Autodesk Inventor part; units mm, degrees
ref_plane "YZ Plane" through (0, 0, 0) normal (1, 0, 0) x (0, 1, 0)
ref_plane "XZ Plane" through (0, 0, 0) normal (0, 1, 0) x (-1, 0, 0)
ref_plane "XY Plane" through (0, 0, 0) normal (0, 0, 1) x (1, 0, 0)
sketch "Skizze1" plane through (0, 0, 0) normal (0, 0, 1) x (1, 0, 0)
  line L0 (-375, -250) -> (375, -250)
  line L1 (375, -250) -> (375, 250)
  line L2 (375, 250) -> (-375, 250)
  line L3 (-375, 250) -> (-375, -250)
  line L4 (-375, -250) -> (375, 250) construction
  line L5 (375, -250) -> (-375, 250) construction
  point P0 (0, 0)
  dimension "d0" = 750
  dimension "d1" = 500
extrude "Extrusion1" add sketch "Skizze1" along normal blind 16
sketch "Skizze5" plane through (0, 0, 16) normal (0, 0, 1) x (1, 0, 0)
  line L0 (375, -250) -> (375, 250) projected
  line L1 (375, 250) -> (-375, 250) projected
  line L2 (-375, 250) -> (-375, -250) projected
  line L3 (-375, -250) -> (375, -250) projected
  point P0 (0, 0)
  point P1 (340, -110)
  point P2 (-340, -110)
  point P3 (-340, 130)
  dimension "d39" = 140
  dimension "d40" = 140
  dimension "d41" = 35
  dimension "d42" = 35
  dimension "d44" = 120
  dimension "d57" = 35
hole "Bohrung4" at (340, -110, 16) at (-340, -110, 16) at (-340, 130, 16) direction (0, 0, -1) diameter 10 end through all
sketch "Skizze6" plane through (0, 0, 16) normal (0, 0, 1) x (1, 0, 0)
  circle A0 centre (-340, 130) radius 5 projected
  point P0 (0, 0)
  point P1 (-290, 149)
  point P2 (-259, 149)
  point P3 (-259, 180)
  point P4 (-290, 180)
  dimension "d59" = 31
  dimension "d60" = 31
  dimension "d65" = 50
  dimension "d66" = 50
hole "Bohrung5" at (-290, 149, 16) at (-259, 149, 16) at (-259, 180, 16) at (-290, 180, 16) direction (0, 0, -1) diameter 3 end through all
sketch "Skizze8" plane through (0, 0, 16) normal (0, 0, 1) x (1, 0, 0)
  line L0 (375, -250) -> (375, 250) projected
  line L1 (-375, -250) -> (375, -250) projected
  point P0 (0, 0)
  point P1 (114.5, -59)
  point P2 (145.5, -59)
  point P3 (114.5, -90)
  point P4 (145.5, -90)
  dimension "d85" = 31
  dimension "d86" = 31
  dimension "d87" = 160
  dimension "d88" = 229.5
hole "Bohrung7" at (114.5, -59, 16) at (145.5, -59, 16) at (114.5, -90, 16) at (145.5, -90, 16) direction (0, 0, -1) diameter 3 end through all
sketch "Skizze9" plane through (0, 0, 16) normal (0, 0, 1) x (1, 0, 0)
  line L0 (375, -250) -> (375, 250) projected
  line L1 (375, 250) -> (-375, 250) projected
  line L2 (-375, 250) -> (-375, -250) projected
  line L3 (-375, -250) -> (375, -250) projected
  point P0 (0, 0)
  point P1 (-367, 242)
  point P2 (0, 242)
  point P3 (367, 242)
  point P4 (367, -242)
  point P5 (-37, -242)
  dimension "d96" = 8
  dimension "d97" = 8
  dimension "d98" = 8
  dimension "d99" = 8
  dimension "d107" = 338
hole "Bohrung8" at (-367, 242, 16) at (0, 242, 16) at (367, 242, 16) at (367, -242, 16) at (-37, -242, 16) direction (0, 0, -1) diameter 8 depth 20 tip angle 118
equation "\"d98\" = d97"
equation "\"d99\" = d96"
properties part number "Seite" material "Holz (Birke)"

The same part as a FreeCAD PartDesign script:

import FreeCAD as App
import Part
import Sketcher
from FreeCAD import Vector
Q = App.Units.Quantity

doc = App.newDocument("Part")
body = doc.addObject("PartDesign::Body", "Body")

sketch1 = doc.addObject("Sketcher::SketchObject", "Sketch")
body.addObject(sketch1)
sketch1.AttachmentSupport = (doc.XY_Plane, [""])
sketch1.MapMode = "FlatFace"
sketch1.addGeometry(Part.LineSegment(Vector(-375, 250, 0), Vector(-375, -250, 0)), False)
sketch1.addGeometry(Part.LineSegment(Vector(-375, -250, 0), Vector(375, -250, 0)), False)
sketch1.addGeometry(Part.LineSegment(Vector(375, -250, 0), Vector(375, 250, 0)), False)
sketch1.addGeometry(Part.LineSegment(Vector(375, 250, 0), Vector(-375, 250, 0)), False)
sketch1.addConstraint(Sketcher.Constraint("Coincident", 0, 2, 1, 1))
sketch1.addConstraint(Sketcher.Constraint("Coincident", 1, 2, 2, 1))
sketch1.addConstraint(Sketcher.Constraint("Coincident", 2, 2, 3, 1))
sketch1.addConstraint(Sketcher.Constraint("Coincident", 3, 2, 0, 1))
sketch1.addConstraint(Sketcher.Constraint("Vertical", 0))
sketch1.addConstraint(Sketcher.Constraint("Horizontal", 1))
sketch1.addConstraint(Sketcher.Constraint("Vertical", 2))
sketch1.addConstraint(Sketcher.Constraint("Horizontal", 3))
sketch1.addConstraint(Sketcher.Constraint("Symmetric", 0, 2, 2, 2, -1, 1))
sketch1.addConstraint(Sketcher.Constraint("DistanceX", 1, 1, 1, 2, Q("750 mm")))
sketch1.addConstraint(Sketcher.Constraint("DistanceY", 0, 2, 0, 1, Q("500 mm")))
pad1 = doc.addObject("PartDesign::Pad", "Pad")
body.addObject(pad1)
pad1.Profile = sketch1
pad1.Length = 16

sketch2 = doc.addObject("Sketcher::SketchObject", "Sketch001")
body.addObject(sketch2)
sketch2.AttachmentSupport = (doc.XY_Plane, [""])
sketch2.MapMode = "FlatFace"
sketch2.AttachmentOffset = App.Placement(Vector(0, 0, 16), App.Rotation())
sketch2.addGeometry(Part.Circle(Vector(340, -110, 0), Vector(0, 0, 1), 5), False)
sketch2.addGeometry(Part.Circle(Vector(-340, -110, 0), Vector(0, 0, 1), 5), False)
sketch2.addGeometry(Part.Circle(Vector(-340, 130, 0), Vector(0, 0, 1), 5), False)
sketch2.addConstraint(Sketcher.Constraint("Equal", 0, 1))
sketch2.addConstraint(Sketcher.Constraint("Equal", 1, 2))
sketch2.addConstraint(Sketcher.Constraint("Symmetric", 0, 3, 1, 3, -2))
sketch2.addConstraint(Sketcher.Constraint("Vertical", 1, 3, 2, 3))
sketch2.addConstraint(Sketcher.Constraint("Diameter", 0, Q("10 mm")))
sketch2.addConstraint(Sketcher.Constraint("DistanceX", -1, 1, 0, 3, Q("340 mm")))
sketch2.addConstraint(Sketcher.Constraint("DistanceY", 0, 3, -1, 1, Q("110 mm")))
sketch2.addConstraint(Sketcher.Constraint("DistanceY", -1, 1, 2, 3, Q("130 mm")))
doc.recompute()
hole = doc.addObject("PartDesign::Hole", "Hole")
body.addObject(hole)
hole.Profile = sketch2
hole.ThreadType = "None"
hole.Diameter = 10
hole.DepthType = "ThroughAll"

sketch3 = doc.addObject("Sketcher::SketchObject", "Sketch002")
body.addObject(sketch3)
sketch3.AttachmentSupport = (doc.XY_Plane, [""])
sketch3.MapMode = "FlatFace"
sketch3.AttachmentOffset = App.Placement(Vector(0, 0, 16), App.Rotation())
sketch3.addGeometry(Part.Circle(Vector(-290, 149, 0), Vector(0, 0, 1), 1.5), False)
sketch3.addGeometry(Part.Circle(Vector(-259, 149, 0), Vector(0, 0, 1), 1.5), False)
sketch3.addGeometry(Part.Circle(Vector(-259, 180, 0), Vector(0, 0, 1), 1.5), False)
sketch3.addGeometry(Part.Circle(Vector(-290, 180, 0), Vector(0, 0, 1), 1.5), False)
sketch3.addConstraint(Sketcher.Constraint("Equal", 0, 1))
sketch3.addConstraint(Sketcher.Constraint("Equal", 1, 2))
sketch3.addConstraint(Sketcher.Constraint("Equal", 2, 3))
sketch3.addConstraint(Sketcher.Constraint("Horizontal", 0, 3, 1, 3))
sketch3.addConstraint(Sketcher.Constraint("Horizontal", 2, 3, 3, 3))
sketch3.addConstraint(Sketcher.Constraint("Vertical", 1, 3, 2, 3))
sketch3.addConstraint(Sketcher.Constraint("Vertical", 0, 3, 3, 3))
sketch3.addConstraint(Sketcher.Constraint("Diameter", 0, Q("3 mm")))
sketch3.addConstraint(Sketcher.Constraint("DistanceX", 0, 3, -1, 1, Q("290 mm")))
sketch3.addConstraint(Sketcher.Constraint("DistanceY", -1, 1, 0, 3, Q("149 mm")))
sketch3.addConstraint(Sketcher.Constraint("DistanceX", 1, 3, -1, 1, Q("259 mm")))
sketch3.addConstraint(Sketcher.Constraint("DistanceY", -1, 1, 2, 3, Q("180 mm")))
doc.recompute()
hole2 = doc.addObject("PartDesign::Hole", "Hole001")
body.addObject(hole2)
hole2.Profile = sketch3
hole2.ThreadType = "None"
hole2.Diameter = 3
hole2.DepthType = "ThroughAll"

sketch4 = doc.addObject("Sketcher::SketchObject", "Sketch003")
body.addObject(sketch4)
sketch4.AttachmentSupport = (doc.XY_Plane, [""])
sketch4.MapMode = "FlatFace"
sketch4.AttachmentOffset = App.Placement(Vector(0, 0, 16), App.Rotation())
sketch4.addGeometry(Part.Circle(Vector(114.5, -59, 0), Vector(0, 0, 1), 1.5), False)
sketch4.addGeometry(Part.Circle(Vector(145.5, -59, 0), Vector(0, 0, 1), 1.5), False)
sketch4.addGeometry(Part.Circle(Vector(114.5, -90, 0), Vector(0, 0, 1), 1.5), False)
sketch4.addGeometry(Part.Circle(Vector(145.5, -90, 0), Vector(0, 0, 1), 1.5), False)
sketch4.addConstraint(Sketcher.Constraint("Equal", 0, 1))
sketch4.addConstraint(Sketcher.Constraint("Equal", 1, 2))
sketch4.addConstraint(Sketcher.Constraint("Equal", 2, 3))
sketch4.addConstraint(Sketcher.Constraint("Horizontal", 0, 3, 1, 3))
sketch4.addConstraint(Sketcher.Constraint("Horizontal", 2, 3, 3, 3))
sketch4.addConstraint(Sketcher.Constraint("Vertical", 0, 3, 2, 3))
sketch4.addConstraint(Sketcher.Constraint("Vertical", 1, 3, 3, 3))
sketch4.addConstraint(Sketcher.Constraint("Diameter", 0, Q("3 mm")))
sketch4.addConstraint(Sketcher.Constraint("DistanceY", 0, 3, -1, 1, Q("59 mm")))
sketch4.addConstraint(Sketcher.Constraint("DistanceY", 2, 3, -1, 1, Q("90 mm")))
sketch4.addConstraint(Sketcher.Constraint("DistanceX", 0, 3, 1, 3, Q("31 mm")))
sketch4.addConstraint(Sketcher.Constraint("DistanceX", -1, 1, 0, 3, Q("114.5 mm")))
doc.recompute()
hole3 = doc.addObject("PartDesign::Hole", "Hole002")
body.addObject(hole3)
hole3.Profile = sketch4
hole3.ThreadType = "None"
hole3.Diameter = 3
hole3.DepthType = "ThroughAll"

sketch5 = doc.addObject("Sketcher::SketchObject", "Sketch004")
body.addObject(sketch5)
sketch5.AttachmentSupport = (doc.XY_Plane, [""])
sketch5.MapMode = "FlatFace"
sketch5.AttachmentOffset = App.Placement(Vector(0, 0, 16), App.Rotation())
sketch5.addGeometry(Part.Circle(Vector(-367, 242, 0), Vector(0, 0, 1), 4), False)
sketch5.addGeometry(Part.Circle(Vector(0, 242, 0), Vector(0, 0, 1), 4), False)
sketch5.addGeometry(Part.Circle(Vector(367, 242, 0), Vector(0, 0, 1), 4), False)
sketch5.addGeometry(Part.Circle(Vector(367, -242, 0), Vector(0, 0, 1), 4), False)
sketch5.addGeometry(Part.Circle(Vector(-37, -242, 0), Vector(0, 0, 1), 4), False)
sketch5.addConstraint(Sketcher.Constraint("Equal", 0, 1))
sketch5.addConstraint(Sketcher.Constraint("Equal", 1, 2))
sketch5.addConstraint(Sketcher.Constraint("Equal", 2, 3))
sketch5.addConstraint(Sketcher.Constraint("Equal", 3, 4))
sketch5.addConstraint(Sketcher.Constraint("Symmetric", 0, 3, 3, 3, -1, 1))
sketch5.addConstraint(Sketcher.Constraint("Symmetric", 0, 3, 2, 3, -2))
sketch5.addConstraint(Sketcher.Constraint("PointOnObject", 1, 3, -2))
sketch5.addConstraint(Sketcher.Constraint("Horizontal", 0, 3, 1, 3))
sketch5.addConstraint(Sketcher.Constraint("Horizontal", 3, 3, 4, 3))
sketch5.addConstraint(Sketcher.Constraint("Diameter", 0, Q("8 mm")))
sketch5.addConstraint(Sketcher.Constraint("DistanceX", 0, 3, -1, 1, Q("367 mm")))
sketch5.addConstraint(Sketcher.Constraint("DistanceY", -1, 1, 0, 3, Q("242 mm")))
sketch5.addConstraint(Sketcher.Constraint("DistanceX", 4, 3, -1, 1, Q("37 mm")))
doc.recompute()
hole4 = doc.addObject("PartDesign::Hole", "Hole003")
body.addObject(hole4)
hole4.Profile = sketch5
hole4.ThreadType = "None"
hole4.Diameter = 8
hole4.DepthType = "Dimension"
hole4.Depth = 20
hole4.DrillPoint = "Angled"
hole4.DrillPointAngle = 118

doc.recompute()
